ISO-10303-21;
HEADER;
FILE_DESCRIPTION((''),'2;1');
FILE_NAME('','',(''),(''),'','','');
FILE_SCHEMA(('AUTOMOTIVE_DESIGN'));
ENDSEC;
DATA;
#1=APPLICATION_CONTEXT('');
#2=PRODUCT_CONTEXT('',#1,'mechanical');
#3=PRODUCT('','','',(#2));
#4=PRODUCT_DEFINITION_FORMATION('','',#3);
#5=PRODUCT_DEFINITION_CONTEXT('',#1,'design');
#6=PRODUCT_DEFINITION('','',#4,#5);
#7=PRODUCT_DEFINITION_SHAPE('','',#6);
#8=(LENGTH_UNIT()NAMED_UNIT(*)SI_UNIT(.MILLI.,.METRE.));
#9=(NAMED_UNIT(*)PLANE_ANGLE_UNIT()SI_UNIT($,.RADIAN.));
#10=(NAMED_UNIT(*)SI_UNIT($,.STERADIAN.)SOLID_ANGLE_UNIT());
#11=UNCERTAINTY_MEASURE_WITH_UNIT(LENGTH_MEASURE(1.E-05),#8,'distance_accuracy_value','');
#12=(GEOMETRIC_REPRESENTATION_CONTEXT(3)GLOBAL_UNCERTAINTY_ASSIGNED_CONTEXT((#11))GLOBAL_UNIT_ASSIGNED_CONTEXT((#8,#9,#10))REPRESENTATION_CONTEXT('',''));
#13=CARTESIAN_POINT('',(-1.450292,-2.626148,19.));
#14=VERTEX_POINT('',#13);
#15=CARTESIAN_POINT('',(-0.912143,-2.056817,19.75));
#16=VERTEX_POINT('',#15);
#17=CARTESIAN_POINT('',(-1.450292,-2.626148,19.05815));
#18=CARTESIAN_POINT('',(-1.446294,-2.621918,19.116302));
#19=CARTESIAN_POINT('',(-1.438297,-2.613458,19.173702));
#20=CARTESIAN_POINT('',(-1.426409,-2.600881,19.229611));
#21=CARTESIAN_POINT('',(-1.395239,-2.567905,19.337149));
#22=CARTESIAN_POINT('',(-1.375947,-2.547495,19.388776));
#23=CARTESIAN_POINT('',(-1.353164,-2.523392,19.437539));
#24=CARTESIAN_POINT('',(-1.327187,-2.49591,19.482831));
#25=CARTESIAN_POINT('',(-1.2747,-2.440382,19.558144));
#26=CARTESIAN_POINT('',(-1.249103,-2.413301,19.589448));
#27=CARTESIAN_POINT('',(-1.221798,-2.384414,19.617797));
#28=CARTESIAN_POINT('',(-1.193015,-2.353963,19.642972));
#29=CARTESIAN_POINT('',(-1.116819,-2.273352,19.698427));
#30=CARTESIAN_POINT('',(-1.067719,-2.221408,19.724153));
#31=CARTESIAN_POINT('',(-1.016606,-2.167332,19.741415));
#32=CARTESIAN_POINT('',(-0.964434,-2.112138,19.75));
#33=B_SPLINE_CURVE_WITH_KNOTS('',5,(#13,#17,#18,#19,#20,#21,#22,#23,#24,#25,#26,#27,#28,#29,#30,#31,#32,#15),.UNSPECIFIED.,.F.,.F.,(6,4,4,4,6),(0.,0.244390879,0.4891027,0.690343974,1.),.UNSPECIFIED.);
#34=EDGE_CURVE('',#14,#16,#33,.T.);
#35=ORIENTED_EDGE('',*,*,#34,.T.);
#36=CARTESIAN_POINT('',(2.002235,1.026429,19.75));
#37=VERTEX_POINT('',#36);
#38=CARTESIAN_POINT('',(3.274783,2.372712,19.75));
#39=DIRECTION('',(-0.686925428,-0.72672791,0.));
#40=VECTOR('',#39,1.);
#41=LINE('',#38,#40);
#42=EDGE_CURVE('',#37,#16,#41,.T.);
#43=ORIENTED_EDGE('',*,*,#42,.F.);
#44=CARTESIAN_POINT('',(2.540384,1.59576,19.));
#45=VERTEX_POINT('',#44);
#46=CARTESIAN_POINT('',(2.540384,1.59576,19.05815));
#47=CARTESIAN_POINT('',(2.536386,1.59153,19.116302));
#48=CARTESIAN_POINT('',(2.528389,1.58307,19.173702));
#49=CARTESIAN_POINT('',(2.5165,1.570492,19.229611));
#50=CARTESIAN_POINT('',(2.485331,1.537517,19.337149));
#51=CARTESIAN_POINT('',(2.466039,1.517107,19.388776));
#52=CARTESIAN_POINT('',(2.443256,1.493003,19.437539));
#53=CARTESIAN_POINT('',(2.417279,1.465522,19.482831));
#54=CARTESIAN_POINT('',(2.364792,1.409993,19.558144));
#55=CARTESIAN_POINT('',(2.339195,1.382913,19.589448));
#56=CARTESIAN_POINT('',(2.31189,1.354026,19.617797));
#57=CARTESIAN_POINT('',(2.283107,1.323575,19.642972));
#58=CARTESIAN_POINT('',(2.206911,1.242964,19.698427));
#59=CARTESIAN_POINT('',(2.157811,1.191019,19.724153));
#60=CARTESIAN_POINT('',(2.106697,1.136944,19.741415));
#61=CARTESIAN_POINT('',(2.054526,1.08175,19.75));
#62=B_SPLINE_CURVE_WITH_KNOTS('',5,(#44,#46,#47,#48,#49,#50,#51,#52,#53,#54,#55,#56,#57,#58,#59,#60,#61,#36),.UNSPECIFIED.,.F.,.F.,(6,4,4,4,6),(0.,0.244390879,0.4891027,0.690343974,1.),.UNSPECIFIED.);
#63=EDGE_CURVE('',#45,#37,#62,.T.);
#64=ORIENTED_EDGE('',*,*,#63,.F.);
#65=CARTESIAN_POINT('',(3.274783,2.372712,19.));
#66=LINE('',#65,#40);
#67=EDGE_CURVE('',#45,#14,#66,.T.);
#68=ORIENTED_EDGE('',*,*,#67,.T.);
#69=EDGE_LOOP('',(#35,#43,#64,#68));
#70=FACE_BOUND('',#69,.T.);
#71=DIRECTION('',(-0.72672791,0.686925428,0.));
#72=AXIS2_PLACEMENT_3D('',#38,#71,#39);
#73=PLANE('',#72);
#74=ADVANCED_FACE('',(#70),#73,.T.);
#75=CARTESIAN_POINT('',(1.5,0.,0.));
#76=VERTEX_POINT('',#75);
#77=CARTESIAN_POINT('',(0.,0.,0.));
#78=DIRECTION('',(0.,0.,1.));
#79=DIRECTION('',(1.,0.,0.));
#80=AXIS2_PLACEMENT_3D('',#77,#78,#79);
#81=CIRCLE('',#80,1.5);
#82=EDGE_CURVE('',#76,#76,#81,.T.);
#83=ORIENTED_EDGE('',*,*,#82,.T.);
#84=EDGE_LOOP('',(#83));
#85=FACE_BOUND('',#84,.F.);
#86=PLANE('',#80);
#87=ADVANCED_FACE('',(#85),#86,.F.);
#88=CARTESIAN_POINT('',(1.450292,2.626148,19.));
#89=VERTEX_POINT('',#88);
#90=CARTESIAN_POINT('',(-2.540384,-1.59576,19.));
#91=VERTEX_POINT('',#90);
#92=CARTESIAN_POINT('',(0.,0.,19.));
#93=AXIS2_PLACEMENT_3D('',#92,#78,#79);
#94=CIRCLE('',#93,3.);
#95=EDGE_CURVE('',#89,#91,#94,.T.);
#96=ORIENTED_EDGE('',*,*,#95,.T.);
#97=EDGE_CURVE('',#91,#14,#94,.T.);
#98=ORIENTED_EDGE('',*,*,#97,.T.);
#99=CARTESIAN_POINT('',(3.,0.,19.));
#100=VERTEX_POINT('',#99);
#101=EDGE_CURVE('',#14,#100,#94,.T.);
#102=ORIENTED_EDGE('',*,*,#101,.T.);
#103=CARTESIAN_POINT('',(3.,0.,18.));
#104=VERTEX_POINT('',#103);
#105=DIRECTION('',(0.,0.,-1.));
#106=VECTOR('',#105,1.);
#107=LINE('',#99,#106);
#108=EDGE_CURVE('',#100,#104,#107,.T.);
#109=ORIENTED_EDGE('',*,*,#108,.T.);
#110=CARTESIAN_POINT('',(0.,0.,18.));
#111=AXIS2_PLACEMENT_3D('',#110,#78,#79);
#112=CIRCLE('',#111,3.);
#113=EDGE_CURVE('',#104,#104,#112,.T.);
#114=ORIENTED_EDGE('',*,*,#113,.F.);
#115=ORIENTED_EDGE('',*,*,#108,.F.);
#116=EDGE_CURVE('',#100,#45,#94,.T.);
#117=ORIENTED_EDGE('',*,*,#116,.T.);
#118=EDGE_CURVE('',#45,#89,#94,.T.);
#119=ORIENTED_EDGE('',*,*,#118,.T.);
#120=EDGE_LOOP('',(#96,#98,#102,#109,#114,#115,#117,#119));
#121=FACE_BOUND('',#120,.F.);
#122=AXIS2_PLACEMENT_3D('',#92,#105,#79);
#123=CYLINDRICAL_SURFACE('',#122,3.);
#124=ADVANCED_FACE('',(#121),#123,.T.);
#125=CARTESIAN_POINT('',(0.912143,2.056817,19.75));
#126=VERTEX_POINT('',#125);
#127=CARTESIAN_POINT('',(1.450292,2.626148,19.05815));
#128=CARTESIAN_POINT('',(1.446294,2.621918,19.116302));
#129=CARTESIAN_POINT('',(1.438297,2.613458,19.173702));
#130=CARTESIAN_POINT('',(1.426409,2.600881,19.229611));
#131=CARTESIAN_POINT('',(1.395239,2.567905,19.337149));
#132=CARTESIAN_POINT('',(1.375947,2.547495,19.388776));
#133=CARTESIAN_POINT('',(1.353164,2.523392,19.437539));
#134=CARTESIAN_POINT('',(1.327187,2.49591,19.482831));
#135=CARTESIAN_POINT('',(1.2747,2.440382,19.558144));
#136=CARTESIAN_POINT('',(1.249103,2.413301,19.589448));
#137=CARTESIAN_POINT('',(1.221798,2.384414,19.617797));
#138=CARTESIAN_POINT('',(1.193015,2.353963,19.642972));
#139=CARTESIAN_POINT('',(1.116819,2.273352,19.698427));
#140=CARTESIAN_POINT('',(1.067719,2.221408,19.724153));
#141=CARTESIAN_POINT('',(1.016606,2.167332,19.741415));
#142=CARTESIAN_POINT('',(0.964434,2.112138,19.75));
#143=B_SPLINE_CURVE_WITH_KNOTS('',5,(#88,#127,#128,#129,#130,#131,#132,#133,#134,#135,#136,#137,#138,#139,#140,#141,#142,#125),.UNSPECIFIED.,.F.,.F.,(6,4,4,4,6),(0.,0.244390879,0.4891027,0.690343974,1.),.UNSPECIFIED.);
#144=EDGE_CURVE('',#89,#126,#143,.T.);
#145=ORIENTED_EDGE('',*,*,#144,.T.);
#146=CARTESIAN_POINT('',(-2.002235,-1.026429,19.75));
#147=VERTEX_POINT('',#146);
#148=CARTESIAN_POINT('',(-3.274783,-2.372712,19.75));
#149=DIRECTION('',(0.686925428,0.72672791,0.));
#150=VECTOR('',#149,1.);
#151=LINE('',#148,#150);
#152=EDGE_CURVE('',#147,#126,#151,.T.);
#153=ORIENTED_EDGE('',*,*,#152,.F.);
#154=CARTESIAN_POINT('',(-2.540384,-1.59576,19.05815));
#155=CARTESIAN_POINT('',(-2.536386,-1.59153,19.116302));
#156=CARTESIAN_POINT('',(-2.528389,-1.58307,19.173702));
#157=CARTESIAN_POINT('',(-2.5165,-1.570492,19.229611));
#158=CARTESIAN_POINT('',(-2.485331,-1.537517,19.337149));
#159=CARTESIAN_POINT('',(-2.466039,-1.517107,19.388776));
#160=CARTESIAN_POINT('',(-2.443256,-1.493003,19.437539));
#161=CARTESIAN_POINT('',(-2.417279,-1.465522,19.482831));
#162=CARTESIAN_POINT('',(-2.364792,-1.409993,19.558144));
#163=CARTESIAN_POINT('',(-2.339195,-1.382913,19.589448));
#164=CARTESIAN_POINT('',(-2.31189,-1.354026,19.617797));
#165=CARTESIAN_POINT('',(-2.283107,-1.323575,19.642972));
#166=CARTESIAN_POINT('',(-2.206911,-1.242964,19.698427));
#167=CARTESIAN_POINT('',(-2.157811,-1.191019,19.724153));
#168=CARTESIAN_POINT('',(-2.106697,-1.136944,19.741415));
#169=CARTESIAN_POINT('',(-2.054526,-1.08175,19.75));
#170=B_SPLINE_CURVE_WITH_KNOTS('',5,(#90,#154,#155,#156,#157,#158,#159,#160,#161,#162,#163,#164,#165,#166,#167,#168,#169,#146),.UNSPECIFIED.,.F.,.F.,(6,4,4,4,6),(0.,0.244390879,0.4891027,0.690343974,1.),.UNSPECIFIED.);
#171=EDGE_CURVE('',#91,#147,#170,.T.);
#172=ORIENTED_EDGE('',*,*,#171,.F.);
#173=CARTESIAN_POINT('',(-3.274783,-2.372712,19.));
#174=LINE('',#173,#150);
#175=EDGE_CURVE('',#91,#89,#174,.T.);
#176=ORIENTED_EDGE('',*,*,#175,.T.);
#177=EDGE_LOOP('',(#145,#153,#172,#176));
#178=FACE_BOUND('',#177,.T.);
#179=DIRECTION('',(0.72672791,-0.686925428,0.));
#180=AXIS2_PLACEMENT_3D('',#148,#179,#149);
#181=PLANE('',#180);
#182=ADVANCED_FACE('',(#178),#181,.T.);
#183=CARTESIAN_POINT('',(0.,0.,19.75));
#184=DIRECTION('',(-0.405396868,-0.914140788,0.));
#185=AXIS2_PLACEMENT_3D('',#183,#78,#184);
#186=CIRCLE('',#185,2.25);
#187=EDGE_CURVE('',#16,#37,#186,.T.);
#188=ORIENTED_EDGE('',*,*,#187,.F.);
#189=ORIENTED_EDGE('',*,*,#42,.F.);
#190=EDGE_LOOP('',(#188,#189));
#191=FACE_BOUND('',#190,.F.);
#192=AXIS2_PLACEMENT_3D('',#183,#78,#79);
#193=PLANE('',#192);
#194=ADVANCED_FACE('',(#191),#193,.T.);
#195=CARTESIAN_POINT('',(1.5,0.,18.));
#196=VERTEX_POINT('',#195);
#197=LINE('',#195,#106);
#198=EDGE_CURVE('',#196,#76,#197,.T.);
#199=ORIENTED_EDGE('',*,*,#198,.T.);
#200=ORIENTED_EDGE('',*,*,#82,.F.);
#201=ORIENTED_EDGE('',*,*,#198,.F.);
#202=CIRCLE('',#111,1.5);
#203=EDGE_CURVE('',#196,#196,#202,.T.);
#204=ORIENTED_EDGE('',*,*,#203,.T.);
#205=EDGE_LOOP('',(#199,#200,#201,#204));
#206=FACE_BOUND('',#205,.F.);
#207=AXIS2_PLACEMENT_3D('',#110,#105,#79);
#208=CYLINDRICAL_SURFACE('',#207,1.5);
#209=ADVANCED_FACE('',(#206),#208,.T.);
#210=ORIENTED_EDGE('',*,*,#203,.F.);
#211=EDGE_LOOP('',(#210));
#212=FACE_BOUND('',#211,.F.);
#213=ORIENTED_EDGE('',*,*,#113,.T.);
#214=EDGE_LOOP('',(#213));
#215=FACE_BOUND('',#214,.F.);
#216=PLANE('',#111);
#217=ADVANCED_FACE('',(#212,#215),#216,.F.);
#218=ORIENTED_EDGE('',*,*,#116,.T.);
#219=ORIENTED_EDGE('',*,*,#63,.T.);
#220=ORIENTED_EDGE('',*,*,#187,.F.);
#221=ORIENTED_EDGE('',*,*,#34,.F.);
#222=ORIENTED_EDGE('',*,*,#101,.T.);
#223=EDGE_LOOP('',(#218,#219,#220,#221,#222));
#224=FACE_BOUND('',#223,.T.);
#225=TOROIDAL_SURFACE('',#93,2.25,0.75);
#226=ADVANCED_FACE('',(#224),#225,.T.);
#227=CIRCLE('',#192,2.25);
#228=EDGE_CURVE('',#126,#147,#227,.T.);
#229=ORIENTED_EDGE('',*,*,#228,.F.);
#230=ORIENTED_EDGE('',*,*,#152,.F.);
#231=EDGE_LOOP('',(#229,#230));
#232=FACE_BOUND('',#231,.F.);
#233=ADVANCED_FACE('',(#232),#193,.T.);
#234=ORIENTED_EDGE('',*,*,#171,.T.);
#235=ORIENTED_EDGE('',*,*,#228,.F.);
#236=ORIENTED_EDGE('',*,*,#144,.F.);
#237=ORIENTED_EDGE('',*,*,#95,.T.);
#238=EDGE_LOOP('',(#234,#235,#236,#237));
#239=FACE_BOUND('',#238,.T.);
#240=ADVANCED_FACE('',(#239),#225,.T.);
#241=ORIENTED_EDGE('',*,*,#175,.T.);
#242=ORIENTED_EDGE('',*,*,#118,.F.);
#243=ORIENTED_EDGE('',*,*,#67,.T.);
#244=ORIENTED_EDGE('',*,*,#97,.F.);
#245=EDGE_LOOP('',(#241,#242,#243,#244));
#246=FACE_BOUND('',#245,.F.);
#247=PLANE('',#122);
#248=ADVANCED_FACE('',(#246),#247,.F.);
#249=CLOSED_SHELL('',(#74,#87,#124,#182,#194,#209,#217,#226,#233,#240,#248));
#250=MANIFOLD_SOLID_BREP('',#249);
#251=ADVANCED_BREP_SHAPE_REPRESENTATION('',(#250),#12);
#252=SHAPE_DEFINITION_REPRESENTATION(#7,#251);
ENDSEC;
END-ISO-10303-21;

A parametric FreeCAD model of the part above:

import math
import FreeCAD as App
import Part
import Sketcher
from FreeCAD import Vector


def add_polygon(sketch, points):
    """Adds a closed chain of lines whose ends are joined by coincident constraints."""
    first, n = sketch.GeometryCount, len(points)
    for a, b in zip(points, points[1:] + points[:1]):
        sketch.addGeometry(Part.LineSegment(App.Vector(*a, 0), App.Vector(*b, 0)), False)
    for i in range(n):
        sketch.addConstraint(Sketcher.Constraint("Coincident", first + i, 2, first + (i + 1) % n, 1))

doc = App.newDocument("Part")
body = doc.addObject("PartDesign::Body", "Body")

# Sketch on XZ plane
sketch1 = body.newObject("Sketcher::SketchObject", "Sketch")
sketch1.AttachmentSupport = (doc.getObject("XZ_Plane"), [""])
sketch1.MapMode = "FlatFace"
sketch1.addGeometry([
    Part.LineSegment(Vector(0, 19.8, 0), Vector(0, 0, 0)),  # 0
    Part.LineSegment(Vector(0, 0, 0), Vector(1.5, 0, 0)),  # 1
    Part.LineSegment(Vector(1.5, 0, 0), Vector(1.5, 18, 0)),  # 2
    Part.LineSegment(Vector(1.5, 18, 0), Vector(3, 18, 0)),  # 3
    Part.LineSegment(Vector(3, 18, 0), Vector(3, 19, 0)),  # 4
    Part.ArcOfCircle(Part.Circle(Vector(2.2, 19, 0), Vector(0, 0, 1), 0.8), math.radians(0), math.radians(90)),  # 5
    Part.LineSegment(Vector(2.2, 19.8, 0), Vector(0, 19.8, 0)),  # 6
], False)
sketch1.addConstraint([
    Sketcher.Constraint("Coincident", 0, 2, 1, 1),
    Sketcher.Constraint("Coincident", 1, 2, 2, 1),
    Sketcher.Constraint("Coincident", 2, 2, 3, 1),
    Sketcher.Constraint("Coincident", 3, 2, 4, 1),
    Sketcher.Constraint("Tangent", 4, 2, 5, 1),
    Sketcher.Constraint("Tangent", 5, 2, 6, 1),
    Sketcher.Constraint("Coincident", 6, 2, 0, 1),
    Sketcher.Constraint("Vertical", 0),
    Sketcher.Constraint("Horizontal", 1),
    Sketcher.Constraint("Vertical", 2),
    Sketcher.Constraint("Horizontal", 3),
    Sketcher.Constraint("Vertical", 4),
    Sketcher.Constraint("Horizontal", 6),
    Sketcher.Constraint("Coincident", 0, 2, -1, 1),
    Sketcher.Constraint("Equal", 1, 3),
    Sketcher.Constraint("DistanceY", 2, 1, 2, 2, 18.0),
    Sketcher.Constraint("DistanceY", 4, 1, 4, 2, 1.0),
    Sketcher.Constraint("Radius", 5, 0.75),
    Sketcher.Constraint("DistanceX", 1, 1, 1, 2, 1.5),
])
revolution = body.newObject("PartDesign::Revolution", "Revolution")
revolution.Profile = sketch1
revolution.ReferenceAxis = (sketch1, ["V_Axis"])
revolution.Angle = 360

# Sketch on XY plane
sketch2 = body.newObject("Sketcher::SketchObject", "Sketch001")
sketch2.AttachmentSupport = (doc.getObject("XY_Plane"), [""])
sketch2.MapMode = "FlatFace"
sketch2.AttachmentOffset = App.Placement(Vector(0, 0, 19.75), App.Rotation())
add_polygon(sketch2, [(-2.2, -3.4), (3.3, 2.4), (2.2, 3.4), (-3.3, -2.4)])  # lines 0-3
sketch2.addConstraint([
    Sketcher.Constraint("Symmetric", 0, 2, 2, 2, -1, 1),
    Sketcher.Constraint("Symmetric", 1, 2, 3, 2, -1, 1),
    Sketcher.Constraint("Perpendicular", 0, 1),
    Sketcher.Constraint("Distance", 1, 1.5),
    Sketcher.Constraint("DistanceY", -1, 1, 1, 2, 3.4031),
    Sketcher.Constraint("DistanceY", -1, 1, 0, 2, 2.372712),
])
pocket1 = body.newObject("PartDesign::Pocket", "Pocket")
pocket1.Profile = sketch2
pocket1.Length = 0.75

doc.recompute()
